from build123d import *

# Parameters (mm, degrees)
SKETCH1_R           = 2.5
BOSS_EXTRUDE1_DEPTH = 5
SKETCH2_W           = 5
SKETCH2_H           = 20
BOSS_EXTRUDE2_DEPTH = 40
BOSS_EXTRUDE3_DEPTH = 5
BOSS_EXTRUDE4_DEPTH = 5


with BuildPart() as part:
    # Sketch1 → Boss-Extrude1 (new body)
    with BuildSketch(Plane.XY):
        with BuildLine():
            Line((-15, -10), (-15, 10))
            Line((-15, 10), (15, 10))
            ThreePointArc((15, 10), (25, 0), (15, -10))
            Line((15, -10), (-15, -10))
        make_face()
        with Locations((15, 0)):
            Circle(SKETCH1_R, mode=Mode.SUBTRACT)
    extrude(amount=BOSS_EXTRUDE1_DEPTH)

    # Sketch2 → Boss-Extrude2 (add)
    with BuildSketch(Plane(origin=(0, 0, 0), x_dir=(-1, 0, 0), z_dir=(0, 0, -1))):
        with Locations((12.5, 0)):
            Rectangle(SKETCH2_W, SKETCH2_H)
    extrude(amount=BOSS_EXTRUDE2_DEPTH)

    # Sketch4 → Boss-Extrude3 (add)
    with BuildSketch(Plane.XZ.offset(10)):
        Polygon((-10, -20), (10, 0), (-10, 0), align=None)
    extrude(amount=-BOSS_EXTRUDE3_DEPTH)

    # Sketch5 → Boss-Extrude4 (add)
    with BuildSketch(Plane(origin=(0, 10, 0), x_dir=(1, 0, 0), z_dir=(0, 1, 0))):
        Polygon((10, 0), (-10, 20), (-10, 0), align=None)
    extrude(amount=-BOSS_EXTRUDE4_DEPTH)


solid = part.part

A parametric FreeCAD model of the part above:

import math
import FreeCAD as App
import Part
import Sketcher


def add_polygon(sketch, points):
    """Adds a closed chain of lines whose ends are joined by coincident constraints."""
    first, n = sketch.GeometryCount, len(points)
    for a, b in zip(points, points[1:] + points[:1]):
        sketch.addGeometry(Part.LineSegment(App.Vector(*a, 0), App.Vector(*b, 0)), False)
    for i in range(n):
        sketch.addConstraint(Sketcher.Constraint("Coincident", first + i, 2, first + (i + 1) % n, 1))

doc = App.newDocument("Part")
body = doc.addObject("PartDesign::Body", "Body")

# Sketch on XY plane
sketch1 = body.newObject("Sketcher::SketchObject", "Sketch")
sketch1.AttachmentSupport = (doc.getObject("XY_Plane"), [""])
sketch1.MapMode = "FlatFace"
sketch1.addGeometry(Part.LineSegment(App.Vector(-15, 10, 0), App.Vector(-15, -10, 0)), False)
sketch1.addGeometry(Part.LineSegment(App.Vector(-15, -10, 0), App.Vector(15, -10, 0)), False)
sketch1.addGeometry(Part.ArcOfCircle(Part.Circle(App.Vector(15, 0, 0), App.Vector(0, 0, 1), 10), math.radians(-90), math.radians(90)), False)
sketch1.addGeometry(Part.LineSegment(App.Vector(15, 10, 0), App.Vector(-15, 10, 0)), False)
sketch1.addGeometry(Part.Circle(App.Vector(15, 0, 0), App.Vector(0, 0, 1), 2.5), False)
sketch1.addConstraint(Sketcher.Constraint("Coincident", 0, 2, 1, 1))
sketch1.addConstraint(Sketcher.Constraint("Tangent", 1, 2, 2, 1))
sketch1.addConstraint(Sketcher.Constraint("Tangent", 2, 2, 3, 1))
sketch1.addConstraint(Sketcher.Constraint("Coincident", 3, 2, 0, 1))
sketch1.addConstraint(Sketcher.Constraint("Vertical", 0))
sketch1.addConstraint(Sketcher.Constraint("Horizontal", 1))
sketch1.addConstraint(Sketcher.Constraint("Horizontal", 3))
sketch1.addConstraint(Sketcher.Constraint("Coincident", 4, 3, 2, 3))
sketch1.addConstraint(Sketcher.Constraint("Symmetric", 0, 2, 2, 2, -1, 1))
sketch1.addConstraint(Sketcher.Constraint("Diameter", 4, 5.0))
sketch1.addConstraint(Sketcher.Constraint("Radius", 2, 10.0))
sketch1.addConstraint(Sketcher.Constraint("DistanceX", 1, 1, 1, 2, 30.0))
pad1 = body.newObject("PartDesign::Pad", "Pad")
pad1.Profile = sketch1
pad1.Length = 5

# Sketch on XY plane
sketch2 = body.newObject("Sketcher::SketchObject", "Sketch001")
sketch2.AttachmentSupport = (doc.getObject("XY_Plane"), [""])
sketch2.MapMode = "FlatFace"
add_polygon(sketch2, [(-10, 10), (-10, -10), (-15, -10), (-15, 10)])  # lines 0-3
sketch2.addConstraint(Sketcher.Constraint("Vertical", 0))
sketch2.addConstraint(Sketcher.Constraint("Horizontal", 1))
sketch2.addConstraint(Sketcher.Constraint("Vertical", 2))
sketch2.addConstraint(Sketcher.Constraint("Horizontal", 3))
sketch2.addConstraint(Sketcher.Constraint("DistanceX", 1, 2, 1, 1, 5.0))
sketch2.addConstraint(Sketcher.Constraint("DistanceY", 0, 2, 0, 1, 20.0))
sketch2.addConstraint(Sketcher.Constraint("DistanceX", 0, 2, -1, 1, 10.0))
sketch2.addConstraint(Sketcher.Constraint("DistanceY", 0, 2, -1, 1, 10.0))
pad2 = body.newObject("PartDesign::Pad", "Pad001")
pad2.Profile = sketch2
pad2.Length = 40
pad2.Reversed = True

# Sketch on XZ plane
sketch3 = body.newObject("Sketcher::SketchObject", "Sketch002")
sketch3.AttachmentSupport = (doc.getObject("XZ_Plane"), [""])
sketch3.MapMode = "FlatFace"
sketch3.AttachmentOffset = App.Placement(App.Vector(0, 0, 10), App.Rotation())
add_polygon(sketch3, [(-10, -20), (10, 0), (-10, 0)])  # lines 0-2
sketch3.addConstraint(Sketcher.Constraint("Horizontal", 1))
sketch3.addConstraint(Sketcher.Constraint("Vertical", 2))
sketch3.addConstraint(Sketcher.Constraint("Symmetric", 0, 2, 1, 2, -1, 1))
sketch3.addConstraint(Sketcher.Constraint("Equal", 1, 2))
sketch3.addConstraint(Sketcher.Constraint("DistanceX", 1, 2, 1, 1, 20.0))
pad3 = body.newObject("PartDesign::Pad", "Pad002")
pad3.Profile = sketch3
pad3.Length = 5
pad3.Reversed = True

# Sketch on XZ plane
sketch4 = body.newObject("Sketcher::SketchObject", "Sketch003")
sketch4.AttachmentSupport = (doc.getObject("XZ_Plane"), [""])
sketch4.MapMode = "FlatFace"
sketch4.AttachmentOffset = App.Placement(App.Vector(0, 0, -10), App.Rotation())
add_polygon(sketch4, [(10, 0), (-10, -20), (-10, 0)])  # lines 0-2
sketch4.addConstraint(Sketcher.Constraint("Vertical", 1))
sketch4.addConstraint(Sketcher.Constraint("Horizontal", 2))
sketch4.addConstraint(Sketcher.Constraint("Symmetric", 1, 2, 2, 2, -1, 1))
sketch4.addConstraint(Sketcher.Constraint("Equal", 2, 1))
sketch4.addConstraint(Sketcher.Constraint("DistanceX", 2, 1, 2, 2, 20.0))
pad4 = body.newObject("PartDesign::Pad", "Pad003")
pad4.Profile = sketch4
pad4.Length = 5

doc.recompute()
